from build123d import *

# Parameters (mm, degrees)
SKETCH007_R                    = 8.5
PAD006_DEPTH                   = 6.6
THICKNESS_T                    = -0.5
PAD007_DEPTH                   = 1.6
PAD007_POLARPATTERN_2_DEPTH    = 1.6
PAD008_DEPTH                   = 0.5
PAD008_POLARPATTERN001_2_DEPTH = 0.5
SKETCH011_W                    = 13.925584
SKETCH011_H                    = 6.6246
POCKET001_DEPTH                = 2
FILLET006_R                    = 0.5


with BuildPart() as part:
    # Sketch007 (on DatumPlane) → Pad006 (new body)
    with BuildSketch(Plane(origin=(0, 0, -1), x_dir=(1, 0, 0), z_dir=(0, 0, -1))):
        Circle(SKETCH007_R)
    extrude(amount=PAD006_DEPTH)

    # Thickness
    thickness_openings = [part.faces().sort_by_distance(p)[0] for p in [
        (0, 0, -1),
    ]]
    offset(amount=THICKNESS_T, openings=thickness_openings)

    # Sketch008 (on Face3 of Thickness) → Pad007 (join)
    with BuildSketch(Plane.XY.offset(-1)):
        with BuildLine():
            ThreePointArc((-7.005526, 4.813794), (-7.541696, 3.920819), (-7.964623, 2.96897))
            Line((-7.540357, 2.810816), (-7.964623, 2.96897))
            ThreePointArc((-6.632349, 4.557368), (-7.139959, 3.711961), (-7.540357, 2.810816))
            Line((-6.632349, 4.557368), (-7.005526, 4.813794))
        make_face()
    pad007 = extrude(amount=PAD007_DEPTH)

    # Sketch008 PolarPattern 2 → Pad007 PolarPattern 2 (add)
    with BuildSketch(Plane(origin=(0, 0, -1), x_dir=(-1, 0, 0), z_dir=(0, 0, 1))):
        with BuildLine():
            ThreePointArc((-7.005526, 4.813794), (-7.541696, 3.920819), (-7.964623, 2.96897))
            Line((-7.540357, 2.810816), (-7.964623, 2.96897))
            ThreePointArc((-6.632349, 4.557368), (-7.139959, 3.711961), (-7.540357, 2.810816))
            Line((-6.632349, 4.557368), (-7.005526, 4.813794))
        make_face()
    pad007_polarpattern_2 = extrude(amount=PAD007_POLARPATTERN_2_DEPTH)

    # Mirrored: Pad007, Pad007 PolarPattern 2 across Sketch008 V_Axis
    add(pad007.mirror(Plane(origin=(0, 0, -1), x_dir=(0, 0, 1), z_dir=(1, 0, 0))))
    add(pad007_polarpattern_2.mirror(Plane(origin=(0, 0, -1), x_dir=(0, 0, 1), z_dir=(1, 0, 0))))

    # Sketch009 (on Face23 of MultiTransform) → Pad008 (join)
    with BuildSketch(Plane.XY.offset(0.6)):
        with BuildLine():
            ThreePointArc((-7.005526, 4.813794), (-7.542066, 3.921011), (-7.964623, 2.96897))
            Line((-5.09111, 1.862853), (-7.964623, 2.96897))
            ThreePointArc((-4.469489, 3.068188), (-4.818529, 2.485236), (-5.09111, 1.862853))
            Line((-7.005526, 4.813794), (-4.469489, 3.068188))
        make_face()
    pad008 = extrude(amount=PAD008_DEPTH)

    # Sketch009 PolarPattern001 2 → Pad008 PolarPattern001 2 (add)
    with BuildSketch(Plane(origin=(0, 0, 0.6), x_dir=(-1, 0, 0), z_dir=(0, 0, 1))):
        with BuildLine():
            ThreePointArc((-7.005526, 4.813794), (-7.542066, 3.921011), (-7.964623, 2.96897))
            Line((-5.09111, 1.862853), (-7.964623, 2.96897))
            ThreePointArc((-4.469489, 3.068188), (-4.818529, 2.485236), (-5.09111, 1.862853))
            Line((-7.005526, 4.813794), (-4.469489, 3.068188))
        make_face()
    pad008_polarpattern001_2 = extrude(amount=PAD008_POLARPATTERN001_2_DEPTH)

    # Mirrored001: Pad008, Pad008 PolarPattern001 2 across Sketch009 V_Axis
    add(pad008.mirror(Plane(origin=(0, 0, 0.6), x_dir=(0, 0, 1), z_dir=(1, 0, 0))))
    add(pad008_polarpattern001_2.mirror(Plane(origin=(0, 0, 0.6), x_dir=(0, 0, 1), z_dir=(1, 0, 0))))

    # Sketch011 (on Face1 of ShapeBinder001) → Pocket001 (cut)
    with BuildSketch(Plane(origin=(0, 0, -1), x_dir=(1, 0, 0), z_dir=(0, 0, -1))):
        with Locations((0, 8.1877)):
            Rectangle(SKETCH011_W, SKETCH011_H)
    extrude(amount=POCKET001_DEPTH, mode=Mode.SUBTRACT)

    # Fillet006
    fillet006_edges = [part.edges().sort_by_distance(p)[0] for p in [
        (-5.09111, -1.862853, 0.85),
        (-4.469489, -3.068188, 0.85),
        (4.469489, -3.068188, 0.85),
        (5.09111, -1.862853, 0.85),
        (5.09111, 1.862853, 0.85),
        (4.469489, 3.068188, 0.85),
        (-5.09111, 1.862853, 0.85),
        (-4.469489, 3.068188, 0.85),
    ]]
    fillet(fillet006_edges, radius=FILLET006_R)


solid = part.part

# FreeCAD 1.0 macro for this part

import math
import FreeCAD as App
import Part
import Sketcher

V = App.Vector
Q = App.Units.Quantity


def edges_at(feature, points):
    """Names of the edges that pass closest to the given points."""
    edges = feature.Shape.Edges
    near = lambda p: min(range(len(edges)), key=lambda i: edges[i].distToShape(Part.Vertex(*p))[0])
    return sorted({f"Edge{near(p) + 1}" for p in points})


def faces_at(feature, points):
    """Names of the faces that lie closest to the given points."""
    faces = feature.Shape.Faces
    near = lambda p: min(range(len(faces)), key=lambda i: faces[i].distToShape(Part.Vertex(*p))[0])
    return sorted({f"Face{near(p) + 1}" for p in points})

doc = App.newDocument("Part")
body = doc.addObject("PartDesign::Body", "Body")

sketch1 = doc.addObject("Sketcher::SketchObject", "Sketch")
body.addObject(sketch1)
sketch1.AttachmentSupport = (doc.XY_Plane, [""])
sketch1.MapMode = "FlatFace"
sketch1.AttachmentOffset = App.Placement(V(0, 0, -1), App.Rotation())
sketch1.addGeometry(Part.Circle(V(0, 0, 0), V(0, 0, 1), 8.5), False)
sketch1.addConstraint([
    Sketcher.Constraint("Coincident", 0, 3, -1, 1),
    Sketcher.Constraint("Diameter", 0, Q("17 mm")),
])
pad1 = doc.addObject("PartDesign::Pad", "Pad")
body.addObject(pad1)
pad1.Profile = sketch1
pad1.Length = 6.6
pad1.Reversed = True
doc.recompute()

thickness = doc.addObject("PartDesign::Thickness", "Thickness")
body.addObject(thickness)
thickness.Base = (pad1, faces_at(pad1, [(0, 0, -1)]))
thickness.Value = 0.5
thickness.Reversed = True
thickness.Join = "Arc"

sketch2 = doc.addObject("Sketcher::SketchObject", "Sketch001")
body.addObject(sketch2)
sketch2.AttachmentSupport = (doc.XY_Plane, [""])
sketch2.MapMode = "FlatFace"
sketch2.AttachmentOffset = App.Placement(V(0, 0, -1), App.Rotation())
sketch2.addGeometry([
    Part.ArcOfCircle(Part.Circle(V(0.000033, -0.000016, 0), V(0, 0, 1), 8.500036), math.radians(145.50543), math.radians(159.556048)),
    Part.LineSegment(V(-7.964623, 2.96897, 0), V(-7.540357, 2.810816, 0)),
    Part.ArcOfCircle(Part.Circle(V(-0.000043, 0.000019, 0), V(0, 0, 1), 8.047168), math.radians(145.505328), math.radians(159.556089)),
    Part.LineSegment(V(-6.632349, 4.557368, 0), V(-7.005526, 4.813794, 0)),
], False)
sketch2.addConstraint([
    Sketcher.Constraint("Coincident", 0, 2, 1, 1),
    Sketcher.Constraint("Coincident", 1, 2, 2, 2),
    Sketcher.Constraint("Coincident", 2, 1, 3, 1),
    Sketcher.Constraint("Coincident", 3, 2, 0, 1),
    Sketcher.Constraint("Equal", 1, 3),
    Sketcher.Constraint("Radius", 0, Q("8.500036 mm")),
    Sketcher.Constraint("Radius", 2, Q("8.047168 mm")),
    Sketcher.Constraint("DistanceY", -1, 1, 0, 2, Q("2.96897 mm")),
    Sketcher.Constraint("DistanceX", 2, 1, -1, 1, Q("6.632349 mm")),
    Sketcher.Constraint("DistanceX", 0, 2, 2, 3, Q("7.96458 mm")),
    Sketcher.Constraint("DistanceY", 2, 3, 0, 2, Q("2.968951 mm")),
    Sketcher.Constraint("DistanceX", 1, 2, 0, 3, Q("7.54039 mm")),
    Sketcher.Constraint("DistanceX", 1, 2, 2, 1, Q("0.908008 mm")),
    Sketcher.Constraint("DistanceX", 1, 2, 3, 2, Q("0.534831 mm")),
])
pad2 = doc.addObject("PartDesign::Pad", "Pad001")
body.addObject(pad2)
pad2.Profile = sketch2
pad2.Length = 1.6

sketch3 = doc.addObject("Sketcher::SketchObject", "Sketch002")
body.addObject(sketch3)
sketch3.AttachmentSupport = (doc.XY_Plane, [""])
sketch3.MapMode = "FlatFace"
sketch3.AttachmentOffset = App.Placement(V(0, 0, -1), App.Rotation())
sketch3.addGeometry([
    Part.ArcOfCircle(Part.Circle(V(-0.000033, 0.000016, 0), V(0, 0, 1), 8.500036), math.radians(-34.49457), math.radians(-20.443952)),
    Part.LineSegment(V(7.964623, -2.96897, 0), V(7.540357, -2.810816, 0)),
    Part.ArcOfCircle(Part.Circle(V(0.000043, -0.000019, 0), V(0, 0, 1), 8.047168), math.radians(-34.494672), math.radians(-20.443911)),
    Part.LineSegment(V(6.632349, -4.557368, 0), V(7.005526, -4.813794, 0)),
], False)
sketch3.addConstraint([
    Sketcher.Constraint("Coincident", 0, 2, 1, 1),
    Sketcher.Constraint("Coincident", 1, 2, 2, 2),
    Sketcher.Constraint("Coincident", 2, 1, 3, 1),
    Sketcher.Constraint("Coincident", 3, 2, 0, 1),
    Sketcher.Constraint("Equal", 1, 3),
    Sketcher.Constraint("Radius", 0, Q("8.500036 mm")),
    Sketcher.Constraint("Radius", 2, Q("8.047168 mm")),
    Sketcher.Constraint("DistanceY", 0, 2, -1, 1, Q("2.96897 mm")),
    Sketcher.Constraint("DistanceX", -1, 1, 2, 1, Q("6.632349 mm")),
    Sketcher.Constraint("DistanceX", 2, 3, 0, 2, Q("7.96458 mm")),
    Sketcher.Constraint("DistanceY", 0, 2, 2, 3, Q("2.968951 mm")),
    Sketcher.Constraint("DistanceX", 0, 3, 1, 2, Q("7.54039 mm")),
    Sketcher.Constraint("DistanceX", 2, 1, 1, 2, Q("0.908008 mm")),
    Sketcher.Constraint("DistanceX", 3, 2, 1, 2, Q("0.534831 mm")),
])
pad3 = doc.addObject("PartDesign::Pad", "Pad002")
body.addObject(pad3)
pad3.Profile = sketch3
pad3.Length = 1.6
doc.recompute()

mirrored = doc.addObject("PartDesign::Mirrored", "Mirrored")
body.addObject(mirrored)
mirrored.Originals = [pad2, pad3]
mirrored.MirrorPlane = (doc.YZ_Plane, [""])
body.Tip = mirrored

sketch4 = doc.addObject("Sketcher::SketchObject", "Sketch003")
body.addObject(sketch4)
sketch4.AttachmentSupport = (doc.XY_Plane, [""])
sketch4.MapMode = "FlatFace"
sketch4.AttachmentOffset = App.Placement(V(0, 0, 0.6), App.Rotation())
sketch4.addGeometry([
    Part.ArcOfCircle(Part.Circle(V(-0.048912, 0.02543, 0), V(0, 0, 1), 8.44529), math.radians(145.459656), math.radians(159.601821)),
    Part.LineSegment(V(-7.964623, 2.96897, 0), V(-5.09111, 1.862853, 0)),
    Part.ArcOfCircle(Part.Circle(V(-0.04903, 0.025488, 0), V(0, 0, 1), 5.366422), math.radians(145.459502), math.radians(159.977948)),
    Part.LineSegment(V(-4.469489, 3.068188, 0), V(-7.005526, 4.813794, 0)),
], False)
sketch4.addConstraint([
    Sketcher.Constraint("Coincident", 0, 2, 1, 1),
    Sketcher.Constraint("Coincident", 1, 2, 2, 2),
    Sketcher.Constraint("Coincident", 2, 1, 3, 1),
    Sketcher.Constraint("Coincident", 3, 2, 0, 1),
    Sketcher.Constraint("Radius", 0, Q("8.44529 mm")),
    Sketcher.Constraint("Radius", 2, Q("5.366422 mm")),
    Sketcher.Constraint("DistanceX", 1, 2, 0, 3, Q("5.042198 mm")),
    Sketcher.Constraint("DistanceY", 2, 3, 2, 1, Q("3.0427 mm")),
    Sketcher.Constraint("DistanceX", 0, 3, -1, 1, Q("0.048912 mm")),
    Sketcher.Constraint("DistanceY", -1, 1, 0, 3, Q("0.02543 mm")),
    Sketcher.Constraint("DistanceX", 2, 3, -1, 1, Q("0.04903 mm")),
    Sketcher.Constraint("DistanceY", -1, 1, 0, 2, Q("2.96897 mm")),
    Sketcher.Constraint("DistanceY", 0, 2, 2, 1, Q("0.099218 mm")),
    Sketcher.Constraint("DistanceY", 1, 2, 3, 2, Q("2.950941 mm")),
])
pad4 = doc.addObject("PartDesign::Pad", "Pad003")
body.addObject(pad4)
pad4.Profile = sketch4
pad4.Length = 0.5

sketch5 = doc.addObject("Sketcher::SketchObject", "Sketch004")
body.addObject(sketch5)
sketch5.AttachmentSupport = (doc.XY_Plane, [""])
sketch5.MapMode = "FlatFace"
sketch5.AttachmentOffset = App.Placement(V(0, 0, 0.6), App.Rotation())
sketch5.addGeometry([
    Part.ArcOfCircle(Part.Circle(V(0.048912, -0.02543, 0), V(0, 0, 1), 8.44529), math.radians(-34.540344), math.radians(-20.398179)),
    Part.LineSegment(V(7.964623, -2.96897, 0), V(5.09111, -1.862853, 0)),
    Part.ArcOfCircle(Part.Circle(V(0.04903, -0.025488, 0), V(0, 0, 1), 5.366422), math.radians(-34.540498), math.radians(-20.022052)),
    Part.LineSegment(V(4.469489, -3.068188, 0), V(7.005526, -4.813794, 0)),
], False)
sketch5.addConstraint([
    Sketcher.Constraint("Coincident", 0, 2, 1, 1),
    Sketcher.Constraint("Coincident", 1, 2, 2, 2),
    Sketcher.Constraint("Coincident", 2, 1, 3, 1),
    Sketcher.Constraint("Coincident", 3, 2, 0, 1),
    Sketcher.Constraint("Radius", 0, Q("8.44529 mm")),
    Sketcher.Constraint("Radius", 2, Q("5.366422 mm")),
    Sketcher.Constraint("DistanceX", 0, 3, 1, 2, Q("5.042198 mm")),
    Sketcher.Constraint("DistanceY", 2, 1, 2, 3, Q("3.0427 mm")),
    Sketcher.Constraint("DistanceX", -1, 1, 0, 3, Q("0.048912 mm")),
    Sketcher.Constraint("DistanceY", 0, 3, -1, 1, Q("0.02543 mm")),
    Sketcher.Constraint("DistanceX", -1, 1, 2, 3, Q("0.04903 mm")),
    Sketcher.Constraint("DistanceY", 0, 2, -1, 1, Q("2.96897 mm")),
    Sketcher.Constraint("DistanceY", 2, 1, 0, 2, Q("0.099218 mm")),
    Sketcher.Constraint("DistanceY", 3, 2, 1, 2, Q("2.950941 mm")),
])
pad5 = doc.addObject("PartDesign::Pad", "Pad004")
body.addObject(pad5)
pad5.Profile = sketch5
pad5.Length = 0.5
doc.recompute()

mirrored2 = doc.addObject("PartDesign::Mirrored", "Mirrored001")
body.addObject(mirrored2)
mirrored2.Originals = [pad4, pad5]
mirrored2.MirrorPlane = (doc.YZ_Plane, [""])
body.Tip = mirrored2

sketch6 = doc.addObject("Sketcher::SketchObject", "Sketch005")
body.addObject(sketch6)
sketch6.AttachmentSupport = (doc.XY_Plane, [""])
sketch6.MapMode = "FlatFace"
sketch6.AttachmentOffset = App.Placement(V(0, 0, -1), App.Rotation())
sketch6.addGeometry([
    Part.LineSegment(V(-6.962792, -11.5, 0), V(-6.962792, -4.8754, 0)),
    Part.LineSegment(V(-6.962792, -4.8754, 0), V(6.962792, -4.8754, 0)),
    Part.LineSegment(V(6.962792, -4.8754, 0), V(6.962792, -11.5, 0)),
    Part.LineSegment(V(6.962792, -11.5, 0), V(-6.962792, -11.5, 0)),
], False)
sketch6.addConstraint([
    Sketcher.Constraint("Coincident", 0, 2, 1, 1),
    Sketcher.Constraint("Coincident", 1, 2, 2, 1),
    Sketcher.Constraint("Coincident", 2, 2, 3, 1),
    Sketcher.Constraint("Coincident", 3, 2, 0, 1),
    Sketcher.Constraint("Vertical", 0),
    Sketcher.Constraint("Horizontal", 1),
    Sketcher.Constraint("Vertical", 2),
    Sketcher.Constraint("Horizontal", 3),
    Sketcher.Constraint("DistanceY", 2, 2, -1, 1, Q("11.5 mm")),
    Sketcher.Constraint("DistanceY", 0, 1, 0, 2, Q("6.6246 mm")),
    Sketcher.Constraint("DistanceX", 1, 1, 1, 2, Q("13.925584 mm")),
    Sketcher.Constraint("DistanceX", 0, 2, -1, 1, Q("6.962792 mm")),
])
pocket1 = doc.addObject("PartDesign::Pocket", "Pocket")
body.addObject(pocket1)
pocket1.Profile = sketch6
pocket1.Length = 2
doc.recompute()

fillet = doc.addObject("PartDesign::Fillet", "Fillet")
body.addObject(fillet)
fillet.Base = (pocket1, edges_at(pocket1, [
    (-5.091, -1.863, 0.85),
    (-4.469, -3.068, 0.85),
    (4.469, -3.068, 0.85),
    (5.091, -1.863, 0.85),
    (5.091, 1.863, 0.85),
    (4.469, 3.068, 0.85),
    (-5.091, 1.863, 0.85),
    (-4.469, 3.068, 0.85),
]))
fillet.Radius = 0.5

doc.recompute()
